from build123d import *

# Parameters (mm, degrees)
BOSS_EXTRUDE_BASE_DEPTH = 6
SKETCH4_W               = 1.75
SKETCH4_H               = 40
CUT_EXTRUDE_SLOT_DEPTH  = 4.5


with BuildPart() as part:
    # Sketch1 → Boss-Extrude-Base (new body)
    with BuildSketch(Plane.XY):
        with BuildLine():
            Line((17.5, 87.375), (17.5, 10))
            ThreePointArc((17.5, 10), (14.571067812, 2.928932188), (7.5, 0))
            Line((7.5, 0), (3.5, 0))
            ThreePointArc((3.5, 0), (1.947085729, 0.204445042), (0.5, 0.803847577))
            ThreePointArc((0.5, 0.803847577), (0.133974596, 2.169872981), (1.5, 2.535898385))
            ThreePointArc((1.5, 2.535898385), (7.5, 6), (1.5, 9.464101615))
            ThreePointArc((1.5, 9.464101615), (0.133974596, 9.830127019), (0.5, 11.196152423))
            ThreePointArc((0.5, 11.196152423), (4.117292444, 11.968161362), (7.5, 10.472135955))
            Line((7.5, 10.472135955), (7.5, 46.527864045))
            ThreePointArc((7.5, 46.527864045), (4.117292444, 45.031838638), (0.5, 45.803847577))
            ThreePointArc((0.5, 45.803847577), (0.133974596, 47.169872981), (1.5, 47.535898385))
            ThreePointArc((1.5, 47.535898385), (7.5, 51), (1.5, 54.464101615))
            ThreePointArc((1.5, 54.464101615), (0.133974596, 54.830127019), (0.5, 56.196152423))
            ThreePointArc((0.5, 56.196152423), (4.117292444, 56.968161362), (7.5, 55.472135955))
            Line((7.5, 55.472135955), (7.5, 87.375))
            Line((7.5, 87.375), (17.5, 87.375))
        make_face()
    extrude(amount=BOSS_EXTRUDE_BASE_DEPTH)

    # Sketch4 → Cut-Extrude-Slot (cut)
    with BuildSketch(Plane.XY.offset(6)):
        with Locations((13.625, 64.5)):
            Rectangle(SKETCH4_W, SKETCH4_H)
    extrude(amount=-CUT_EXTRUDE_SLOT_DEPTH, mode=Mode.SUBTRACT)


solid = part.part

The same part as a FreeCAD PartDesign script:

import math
import FreeCAD as App
import Part
import Sketcher
from FreeCAD import Vector
Q = App.Units.Quantity

doc = App.newDocument("Part")
params = doc.addObject("Spreadsheet::Sheet", "Params")
for row, (alias, value) in enumerate([
    ("sketch1_radius", "6 mm"),
    ("sketch1_radius2", "1 mm"),
    ("sketch1_radius3", "10 mm"),
    ("sketch1_width", "4 mm"),
    ("sketch1_width2", "3 mm"),
    ("pad1_length", "6 mm"),
    ("sketch2_height", "40 mm"),
    ("sketch2_width", "1.75 mm"),
    ("pocket1_length", "4.5 mm"),
], start=1):
    params.set(f"A{row}", alias)
    params.set(f"B{row}", "=" + value)
    params.setAlias(f"B{row}", alias)

body = doc.addObject("PartDesign::Body", "Body")

sketch1 = body.newObject("Sketcher::SketchObject", "Sketch")
sketch1.AttachmentSupport = (doc.getObject("XY_Plane"), [""])
sketch1.MapMode = "FlatFace"
sketch1.addGeometry(Part.LineSegment(Vector(17.5, 10, 0), Vector(17.5, 87.4, 0)), False)
sketch1.addGeometry(Part.LineSegment(Vector(17.5, 87.4, 0), Vector(7.5, 87.4, 0)), False)
sketch1.addGeometry(Part.LineSegment(Vector(7.5, 87.4, 0), Vector(7.5, 55.5, 0)), False)
sketch1.addGeometry(Part.ArcOfCircle(Part.Circle(Vector(3.5, 51, 0), Vector(0, 0, 1), 6), math.radians(48), math.radians(120)), False)
sketch1.addGeometry(Part.ArcOfCircle(Part.Circle(Vector(1, 55.3, 0), Vector(0, 0, 1), 1), math.radians(120), math.radians(300)), False)
sketch1.addGeometry(Part.ArcOfCircle(Part.Circle(Vector(3.5, 51, 0), Vector(0, 0, 1), 4), math.radians(-120), math.radians(120)), False)
sketch1.addGeometry(Part.ArcOfCircle(Part.Circle(Vector(1, 46.7, 0), Vector(0, 0, 1), 1), math.radians(60), math.radians(240)), False)
sketch1.addGeometry(Part.ArcOfCircle(Part.Circle(Vector(3.5, 51, 0), Vector(0, 0, 1), 6), math.radians(-120), math.radians(-48)), False)
sketch1.addGeometry(Part.LineSegment(Vector(7.5, 46.5, 0), Vector(7.5, 10.5, 0)), False)
sketch1.addGeometry(Part.ArcOfCircle(Part.Circle(Vector(3.5, 6, 0), Vector(0, 0, 1), 6), math.radians(48), math.radians(120)), False)
sketch1.addGeometry(Part.ArcOfCircle(Part.Circle(Vector(1, 10.3, 0), Vector(0, 0, 1), 1), math.radians(120), math.radians(300)), False)
sketch1.addGeometry(Part.ArcOfCircle(Part.Circle(Vector(3.5, 6, 0), Vector(0, 0, 1), 4), math.radians(-120), math.radians(120)), False)
sketch1.addGeometry(Part.ArcOfCircle(Part.Circle(Vector(1, 1.7, 0), Vector(0, 0, 1), 1), math.radians(60), math.radians(240)), False)
sketch1.addGeometry(Part.ArcOfCircle(Part.Circle(Vector(3.5, 6, 0), Vector(0, 0, 1), 6), math.radians(-120), math.radians(-90)), False)
sketch1.addGeometry(Part.LineSegment(Vector(3.5, 0, 0), Vector(7.5, 0, 0)), False)
sketch1.addGeometry(Part.ArcOfCircle(Part.Circle(Vector(7.5, 10, 0), Vector(0, 0, 1), 10), math.radians(-90), math.radians(0)), False)
sketch1.addConstraint(Sketcher.Constraint("Coincident", 0, 2, 1, 1))
sketch1.addConstraint(Sketcher.Constraint("Coincident", 1, 2, 2, 1))
sketch1.addConstraint(Sketcher.Constraint("Coincident", 2, 2, 3, 1))
sketch1.addConstraint(Sketcher.Constraint("Tangent", 3, 2, 4, 1))
sketch1.addConstraint(Sketcher.Constraint("Tangent", 4, 2, 5, 2))
sketch1.addConstraint(Sketcher.Constraint("Tangent", 5, 1, 6, 1))
sketch1.addConstraint(Sketcher.Constraint("Tangent", 6, 2, 7, 1))
sketch1.addConstraint(Sketcher.Constraint("Coincident", 7, 2, 8, 1))
sketch1.addConstraint(Sketcher.Constraint("Coincident", 8, 2, 9, 1))
sketch1.addConstraint(Sketcher.Constraint("Tangent", 9, 2, 10, 1))
sketch1.addConstraint(Sketcher.Constraint("Tangent", 10, 2, 11, 2))
sketch1.addConstraint(Sketcher.Constraint("Tangent", 11, 1, 12, 1))
sketch1.addConstraint(Sketcher.Constraint("Tangent", 12, 2, 13, 1))
sketch1.addConstraint(Sketcher.Constraint("Tangent", 13, 2, 14, 1))
sketch1.addConstraint(Sketcher.Constraint("Tangent", 14, 2, 15, 1))
sketch1.addConstraint(Sketcher.Constraint("Tangent", 15, 2, 0, 1))
sketch1.addConstraint(Sketcher.Constraint("Vertical", 0))
sketch1.addConstraint(Sketcher.Constraint("Horizontal", 1))
sketch1.addConstraint(Sketcher.Constraint("Vertical", 2))
sketch1.addConstraint(Sketcher.Constraint("Vertical", 8))
sketch1.addConstraint(Sketcher.Constraint("Horizontal", 14))
sketch1.addConstraint(Sketcher.Constraint("Coincident", 5, 3, 3, 3))
sketch1.addConstraint(Sketcher.Constraint("Coincident", 7, 3, 3, 3))
sketch1.addConstraint(Sketcher.Constraint("Coincident", 11, 3, 9, 3))
sketch1.addConstraint(Sketcher.Constraint("Coincident", 13, 3, 9, 3))
sketch1.addConstraint(Sketcher.Constraint("Equal", 4, 6))
sketch1.addConstraint(Sketcher.Constraint("Equal", 7, 9))
sketch1.addConstraint(Sketcher.Constraint("Equal", 6, 10))
sketch1.addConstraint(Sketcher.Constraint("Equal", 10, 12))
sketch1.addConstraint(Sketcher.Constraint("PointOnObject", 13, 2, -1))
sketch1.addConstraint(Sketcher.Constraint("Vertical", 4, 3, 6, 3))
sketch1.addConstraint(Sketcher.Constraint("Vertical", 7, 3, 9, 3))
sketch1.addConstraint(Sketcher.Constraint("Vertical", 6, 3, 10, 3))
sketch1.addConstraint(Sketcher.Constraint("Vertical", 10, 3, 12, 3))
sketch1.addConstraint(Sketcher.Constraint("Vertical", 15, 3, 1, 2))
sketch1.addConstraint(Sketcher.Constraint("Vertical", 2, 2, 7, 2))
sketch1.addConstraint(Sketcher.Constraint("Radius", 3, Q("6 mm")))
sketch1.addConstraint(Sketcher.Constraint("Radius", 4, Q("1 mm")))
sketch1.addConstraint(Sketcher.Constraint("Radius", 15, Q("10 mm")))
sketch1.addConstraint(Sketcher.Constraint("DistanceX", 14, 1, 14, 2, Q("4 mm")))
sketch1.addConstraint(Sketcher.Constraint("DistanceY", -1, 1, 3, 3, Q("51 mm")))
sketch1.addConstraint(Sketcher.Constraint("DistanceX", -1, 1, 4, 3, Q("1 mm")))
sketch1.addConstraint(Sketcher.Constraint("DistanceX", 3, 2, 3, 3, Q("3 mm")))
sketch1.addConstraint(Sketcher.Constraint("DistanceY", 0, 1, 0, 2, Q("77.375 mm")))
sketch1.setExpression("Constraints[36]", "Params.sketch1_radius")
sketch1.setExpression("Constraints[37]", "Params.sketch1_radius2")
sketch1.setExpression("Constraints[38]", "Params.sketch1_radius3")
sketch1.setExpression("Constraints[39]", "Params.sketch1_width")
sketch1.setExpression("Constraints[42]", "Params.sketch1_width2")
pad1 = body.newObject("PartDesign::Pad", "Pad")
pad1.Profile = sketch1
pad1.setExpression("Length", "Params.pad1_length")

sketch2 = body.newObject("Sketcher::SketchObject", "Sketch001")
sketch2.AttachmentSupport = (doc.getObject("XY_Plane"), [""])
sketch2.MapMode = "FlatFace"
sketch2.AttachmentOffset = App.Placement(Vector(0, 0, 6), App.Rotation())
sketch2.addGeometry(Part.LineSegment(Vector(12.8, 84.5, 0), Vector(12.8, 44.5, 0)), False)
sketch2.addGeometry(Part.LineSegment(Vector(12.8, 44.5, 0), Vector(14.5, 44.5, 0)), False)
sketch2.addGeometry(Part.LineSegment(Vector(14.5, 44.5, 0), Vector(14.5, 84.5, 0)), False)
sketch2.addGeometry(Part.LineSegment(Vector(14.5, 84.5, 0), Vector(12.8, 84.5, 0)), False)
sketch2.addConstraint(Sketcher.Constraint("Coincident", 0, 2, 1, 1))
sketch2.addConstraint(Sketcher.Constraint("Coincident", 1, 2, 2, 1))
sketch2.addConstraint(Sketcher.Constraint("Coincident", 2, 2, 3, 1))
sketch2.addConstraint(Sketcher.Constraint("Coincident", 3, 2, 0, 1))
sketch2.addConstraint(Sketcher.Constraint("Vertical", 0))
sketch2.addConstraint(Sketcher.Constraint("Horizontal", 1))
sketch2.addConstraint(Sketcher.Constraint("Vertical", 2))
sketch2.addConstraint(Sketcher.Constraint("Horizontal", 3))
sketch2.addConstraint(Sketcher.Constraint("DistanceY", 0, 2, 0, 1, Q("40 mm")))
sketch2.addConstraint(Sketcher.Constraint("DistanceX", 1, 1, 1, 2, Q("1.75 mm")))
sketch2.addConstraint(Sketcher.Constraint("DistanceY", -1, 1, 0, 2, Q("44.5 mm")))
sketch2.addConstraint(Sketcher.Constraint("DistanceX", -1, 1, 1, 2, Q("14.5 mm")))
sketch2.setExpression("Constraints[8]", "Params.sketch2_height")
sketch2.setExpression("Constraints[9]", "Params.sketch2_width")
pocket1 = body.newObject("PartDesign::Pocket", "Pocket")
pocket1.Profile = sketch2
pocket1.setExpression("Length", "Params.pocket1_length")

doc.recompute()
